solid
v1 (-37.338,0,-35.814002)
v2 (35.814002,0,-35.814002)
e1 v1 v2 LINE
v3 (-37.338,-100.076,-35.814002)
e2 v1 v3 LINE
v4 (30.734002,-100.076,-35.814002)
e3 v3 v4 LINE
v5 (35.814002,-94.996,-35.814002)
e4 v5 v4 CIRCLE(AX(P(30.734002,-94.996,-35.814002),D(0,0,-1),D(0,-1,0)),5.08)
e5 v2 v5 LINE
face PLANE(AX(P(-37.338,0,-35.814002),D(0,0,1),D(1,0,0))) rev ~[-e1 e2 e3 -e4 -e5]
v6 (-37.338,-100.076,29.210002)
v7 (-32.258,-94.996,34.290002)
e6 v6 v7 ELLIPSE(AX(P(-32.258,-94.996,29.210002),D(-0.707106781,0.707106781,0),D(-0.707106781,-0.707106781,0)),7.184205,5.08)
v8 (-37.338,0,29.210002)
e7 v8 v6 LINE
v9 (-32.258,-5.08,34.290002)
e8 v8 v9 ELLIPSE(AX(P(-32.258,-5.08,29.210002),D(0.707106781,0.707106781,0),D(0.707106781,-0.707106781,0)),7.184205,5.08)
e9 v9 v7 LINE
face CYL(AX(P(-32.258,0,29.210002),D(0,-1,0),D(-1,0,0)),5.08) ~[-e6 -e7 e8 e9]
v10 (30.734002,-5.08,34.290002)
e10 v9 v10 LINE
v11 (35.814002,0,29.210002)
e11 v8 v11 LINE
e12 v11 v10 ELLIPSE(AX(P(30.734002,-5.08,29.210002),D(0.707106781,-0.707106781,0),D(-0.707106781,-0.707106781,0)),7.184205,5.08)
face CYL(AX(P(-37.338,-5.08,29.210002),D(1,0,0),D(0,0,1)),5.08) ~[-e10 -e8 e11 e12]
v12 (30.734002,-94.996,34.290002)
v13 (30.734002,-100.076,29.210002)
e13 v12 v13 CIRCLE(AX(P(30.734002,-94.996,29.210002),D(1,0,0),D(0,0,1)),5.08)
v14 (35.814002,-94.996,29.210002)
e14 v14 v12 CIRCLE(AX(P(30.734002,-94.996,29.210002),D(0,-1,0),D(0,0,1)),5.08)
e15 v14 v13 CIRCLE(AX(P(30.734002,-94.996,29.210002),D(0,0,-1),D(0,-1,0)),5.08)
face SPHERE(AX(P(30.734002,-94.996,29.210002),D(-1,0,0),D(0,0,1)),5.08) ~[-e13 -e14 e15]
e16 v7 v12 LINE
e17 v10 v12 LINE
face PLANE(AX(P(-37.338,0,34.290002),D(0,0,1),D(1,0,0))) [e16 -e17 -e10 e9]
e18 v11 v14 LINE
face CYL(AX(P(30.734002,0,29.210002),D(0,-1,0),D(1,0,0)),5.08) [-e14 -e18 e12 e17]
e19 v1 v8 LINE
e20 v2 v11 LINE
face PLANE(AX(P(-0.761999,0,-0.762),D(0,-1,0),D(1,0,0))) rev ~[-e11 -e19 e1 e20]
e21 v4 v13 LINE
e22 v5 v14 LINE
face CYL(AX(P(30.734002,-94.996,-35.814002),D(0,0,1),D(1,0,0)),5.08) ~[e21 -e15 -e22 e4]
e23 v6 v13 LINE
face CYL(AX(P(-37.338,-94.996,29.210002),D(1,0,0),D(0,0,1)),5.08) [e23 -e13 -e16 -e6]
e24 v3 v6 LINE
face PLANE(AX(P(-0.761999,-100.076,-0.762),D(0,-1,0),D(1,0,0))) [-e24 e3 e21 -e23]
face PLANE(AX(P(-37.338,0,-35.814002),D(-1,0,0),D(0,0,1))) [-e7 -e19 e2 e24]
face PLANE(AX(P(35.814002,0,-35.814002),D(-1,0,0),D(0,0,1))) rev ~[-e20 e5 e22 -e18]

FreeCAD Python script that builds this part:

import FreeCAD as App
import Part
import Sketcher
Q = App.Units.Quantity


def edges_at(feature, points):
    """Names of the edges that pass closest to the given points."""
    edges = feature.Shape.Edges
    near = lambda p: min(range(len(edges)), key=lambda i: edges[i].distToShape(Part.Vertex(*p))[0])
    return sorted({f"Edge{near(p) + 1}" for p in points})


def add_polygon(sketch, points):
    """Adds a closed chain of lines whose ends are joined by coincident constraints."""
    first, n = sketch.GeometryCount, len(points)
    for a, b in zip(points, points[1:] + points[:1]):
        sketch.addGeometry(Part.LineSegment(App.Vector(*a, 0), App.Vector(*b, 0)), False)
    for i in range(n):
        sketch.addConstraint(Sketcher.Constraint("Coincident", first + i, 2, first + (i + 1) % n, 1))

doc = App.newDocument("Part")
params = doc.addObject("Spreadsheet::Sheet", "Params")
for row, (alias, value) in enumerate([
    ("sketch1_width", "2.8800001 in"),
    ("sketch1_height", "2.7600001 in"),
    ("pad1_length", "3.94 in"),
    ("fillet_radius", "0.2 in"),
], start=1):
    params.set(f"A{row}", alias)
    params.set(f"B{row}", "=" + value)
    params.setAlias(f"B{row}", alias)

body = doc.addObject("PartDesign::Body", "Body")

sketch1 = doc.addObject("Sketcher::SketchObject", "Sketch")
body.addObject(sketch1)
sketch1.AttachmentSupport = (doc.XZ_Plane, [""])
sketch1.MapMode = "FlatFace"
add_polygon(sketch1, [(-37, 34), (-37, -36), (36, -36), (36, 34)])
sketch1.addConstraint(Sketcher.Constraint("Vertical", 0))
sketch1.addConstraint(Sketcher.Constraint("Horizontal", 1))
sketch1.addConstraint(Sketcher.Constraint("Vertical", 2))
sketch1.addConstraint(Sketcher.Constraint("Horizontal", 3))
sketch1.addConstraint(Sketcher.Constraint("DistanceX", 1, 1, 1, 2, Q("2.8800001 in")))
sketch1.addConstraint(Sketcher.Constraint("DistanceY", 0, 2, 0, 1, Q("2.7600001 in")))
sketch1.addConstraint(Sketcher.Constraint("DistanceX", 0, 2, -1, 1, Q("1.47 in")))
sketch1.addConstraint(Sketcher.Constraint("DistanceY", 0, 2, -1, 1, Q("1.4100001 in")))
sketch1.setExpression("Constraints[8]", "Params.sketch1_width")
sketch1.setExpression("Constraints[9]", "Params.sketch1_height")
pad1 = doc.addObject("PartDesign::Pad", "Pad")
body.addObject(pad1)
pad1.Profile = sketch1
pad1.setExpression("Length", "Params.pad1_length")
doc.recompute()

fillet = doc.addObject("PartDesign::Fillet", "Fillet")
body.addObject(fillet)
fillet.Base = (pad1, edges_at(pad1, [
    (-37.338, -50.038, 34.29),
    (-0.762, -100.076, 34.29),
    (35.814, -50.038, 34.29),
    (-0.762, 0, 34.29),
    (35.814, -100.076, -0.762),
]))
fillet.setExpression("Radius", "Params.fillet_radius")

doc.recompute()
